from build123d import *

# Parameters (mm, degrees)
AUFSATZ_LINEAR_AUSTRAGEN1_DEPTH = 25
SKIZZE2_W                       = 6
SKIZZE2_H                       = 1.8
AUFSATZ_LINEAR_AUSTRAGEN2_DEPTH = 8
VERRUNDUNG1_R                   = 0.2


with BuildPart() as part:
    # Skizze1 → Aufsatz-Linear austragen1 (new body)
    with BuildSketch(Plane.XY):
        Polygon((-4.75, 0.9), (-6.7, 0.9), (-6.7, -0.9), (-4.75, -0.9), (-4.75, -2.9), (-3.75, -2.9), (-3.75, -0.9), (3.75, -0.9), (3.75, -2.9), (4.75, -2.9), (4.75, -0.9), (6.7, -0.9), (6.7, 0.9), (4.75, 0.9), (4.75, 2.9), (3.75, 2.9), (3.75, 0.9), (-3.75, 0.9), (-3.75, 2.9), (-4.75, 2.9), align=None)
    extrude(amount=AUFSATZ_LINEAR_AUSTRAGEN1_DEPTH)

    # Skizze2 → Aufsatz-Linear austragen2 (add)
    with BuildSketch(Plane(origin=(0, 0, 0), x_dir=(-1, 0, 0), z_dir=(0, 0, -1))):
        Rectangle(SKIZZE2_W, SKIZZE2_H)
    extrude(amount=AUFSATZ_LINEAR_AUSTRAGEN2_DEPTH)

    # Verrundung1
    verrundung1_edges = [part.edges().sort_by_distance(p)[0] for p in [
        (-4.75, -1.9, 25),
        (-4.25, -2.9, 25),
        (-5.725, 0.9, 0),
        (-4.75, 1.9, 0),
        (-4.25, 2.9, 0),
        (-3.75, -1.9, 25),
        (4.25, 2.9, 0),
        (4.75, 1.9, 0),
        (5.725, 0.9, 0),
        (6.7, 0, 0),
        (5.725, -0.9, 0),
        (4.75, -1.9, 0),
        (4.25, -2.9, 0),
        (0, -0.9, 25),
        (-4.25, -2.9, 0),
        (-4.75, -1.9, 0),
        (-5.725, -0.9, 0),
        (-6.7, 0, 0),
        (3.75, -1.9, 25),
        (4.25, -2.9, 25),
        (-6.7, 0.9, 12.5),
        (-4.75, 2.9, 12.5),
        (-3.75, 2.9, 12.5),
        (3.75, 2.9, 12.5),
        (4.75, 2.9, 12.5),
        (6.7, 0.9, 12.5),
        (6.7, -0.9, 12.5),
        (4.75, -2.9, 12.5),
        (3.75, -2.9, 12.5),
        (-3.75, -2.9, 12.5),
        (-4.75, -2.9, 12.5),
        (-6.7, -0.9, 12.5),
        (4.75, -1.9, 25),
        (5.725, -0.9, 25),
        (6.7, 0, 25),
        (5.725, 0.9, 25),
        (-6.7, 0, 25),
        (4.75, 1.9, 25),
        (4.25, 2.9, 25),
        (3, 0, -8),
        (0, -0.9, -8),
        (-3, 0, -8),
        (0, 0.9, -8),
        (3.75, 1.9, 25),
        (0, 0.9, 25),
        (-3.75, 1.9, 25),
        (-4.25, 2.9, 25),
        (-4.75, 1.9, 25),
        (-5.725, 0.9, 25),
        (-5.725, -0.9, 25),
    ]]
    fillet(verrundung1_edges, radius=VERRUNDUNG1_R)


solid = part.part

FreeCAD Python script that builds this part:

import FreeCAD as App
import Part
import Sketcher


def edges_at(feature, points):
    """Names of the edges that pass closest to the given points."""
    edges = feature.Shape.Edges
    near = lambda p: min(range(len(edges)), key=lambda i: edges[i].distToShape(Part.Vertex(*p))[0])
    return sorted({f"Edge{near(p) + 1}" for p in points})

doc = App.newDocument("Part")
params = doc.addObject("Spreadsheet::Sheet", "Params")
for row, (alias, value) in enumerate([
    ("sketch1_width", "1 mm"),
    ("sketch1_height", "2 mm"),
    ("sketch1_width2", "7.5 mm"),
    ("sketch1_height2", "1.8 mm"),
    ("sketch1_width3", "1.95 mm"),
    ("pad1_length", "25 mm"),
    ("sketch2_width", "6 mm"),
    ("sketch2_height", "1.8 mm"),
    ("pad2_length", "8 mm"),
    ("fillet_radius", "0.2 mm"),
], start=1):
    params.set(f"A{row}", alias)
    params.set(f"B{row}", "=" + value)
    params.setAlias(f"B{row}", alias)

body = doc.addObject("PartDesign::Body", "Body")

# Sketch on XY plane
sketch1 = doc.addObject("Sketcher::SketchObject", "Sketch")
body.addObject(sketch1)
sketch1.AttachmentSupport = (doc.XY_Plane, [""])
sketch1.MapMode = "FlatFace"
sketch1.addGeometry(Part.LineSegment(App.Vector(-4.8, 0.9, 0), App.Vector(-6.7, 0.9, 0)), False)
sketch1.addGeometry(Part.LineSegment(App.Vector(-6.7, 0.9, 0), App.Vector(-6.7, -0.9, 0)), False)
sketch1.addGeometry(Part.LineSegment(App.Vector(-6.7, -0.9, 0), App.Vector(-4.8, -0.9, 0)), False)
sketch1.addGeometry(Part.LineSegment(App.Vector(-4.8, -0.9, 0), App.Vector(-4.8, -2.9, 0)), False)
sketch1.addGeometry(Part.LineSegment(App.Vector(-4.8, -2.9, 0), App.Vector(-3.8, -2.9, 0)), False)
sketch1.addGeometry(Part.LineSegment(App.Vector(-3.8, -2.9, 0), App.Vector(-3.8, -0.9, 0)), False)
sketch1.addGeometry(Part.LineSegment(App.Vector(-3.8, -0.9, 0), App.Vector(3.8, -0.9, 0)), False)
sketch1.addGeometry(Part.LineSegment(App.Vector(3.8, -0.9, 0), App.Vector(3.8, -2.9, 0)), False)
sketch1.addGeometry(Part.LineSegment(App.Vector(3.8, -2.9, 0), App.Vector(4.8, -2.9, 0)), False)
sketch1.addGeometry(Part.LineSegment(App.Vector(4.8, -2.9, 0), App.Vector(4.8, -0.9, 0)), False)
sketch1.addGeometry(Part.LineSegment(App.Vector(4.8, -0.9, 0), App.Vector(6.7, -0.9, 0)), False)
sketch1.addGeometry(Part.LineSegment(App.Vector(6.7, -0.9, 0), App.Vector(6.7, 0.9, 0)), False)
sketch1.addGeometry(Part.LineSegment(App.Vector(6.7, 0.9, 0), App.Vector(4.8, 0.9, 0)), False)
sketch1.addGeometry(Part.LineSegment(App.Vector(4.8, 0.9, 0), App.Vector(4.8, 2.9, 0)), False)
sketch1.addGeometry(Part.LineSegment(App.Vector(4.8, 2.9, 0), App.Vector(3.8, 2.9, 0)), False)
sketch1.addGeometry(Part.LineSegment(App.Vector(3.8, 2.9, 0), App.Vector(3.8, 0.9, 0)), False)
sketch1.addGeometry(Part.LineSegment(App.Vector(3.8, 0.9, 0), App.Vector(-3.8, 0.9, 0)), False)
sketch1.addGeometry(Part.LineSegment(App.Vector(-3.8, 0.9, 0), App.Vector(-3.8, 2.9, 0)), False)
sketch1.addGeometry(Part.LineSegment(App.Vector(-3.8, 2.9, 0), App.Vector(-4.8, 2.9, 0)), False)
sketch1.addGeometry(Part.LineSegment(App.Vector(-4.8, 2.9, 0), App.Vector(-4.8, 0.9, 0)), False)
sketch1.addConstraint(Sketcher.Constraint("Coincident", 0, 2, 1, 1))
sketch1.addConstraint(Sketcher.Constraint("Coincident", 1, 2, 2, 1))
sketch1.addConstraint(Sketcher.Constraint("Coincident", 2, 2, 3, 1))
sketch1.addConstraint(Sketcher.Constraint("Coincident", 3, 2, 4, 1))
sketch1.addConstraint(Sketcher.Constraint("Coincident", 4, 2, 5, 1))
sketch1.addConstraint(Sketcher.Constraint("Coincident", 5, 2, 6, 1))
sketch1.addConstraint(Sketcher.Constraint("Coincident", 6, 2, 7, 1))
sketch1.addConstraint(Sketcher.Constraint("Coincident", 7, 2, 8, 1))
sketch1.addConstraint(Sketcher.Constraint("Coincident", 8, 2, 9, 1))
sketch1.addConstraint(Sketcher.Constraint("Coincident", 9, 2, 10, 1))
sketch1.addConstraint(Sketcher.Constraint("Coincident", 10, 2, 11, 1))
sketch1.addConstraint(Sketcher.Constraint("Coincident", 11, 2, 12, 1))
sketch1.addConstraint(Sketcher.Constraint("Coincident", 12, 2, 13, 1))
sketch1.addConstraint(Sketcher.Constraint("Coincident", 13, 2, 14, 1))
sketch1.addConstraint(Sketcher.Constraint("Coincident", 14, 2, 15, 1))
sketch1.addConstraint(Sketcher.Constraint("Coincident", 15, 2, 16, 1))
sketch1.addConstraint(Sketcher.Constraint("Coincident", 16, 2, 17, 1))
sketch1.addConstraint(Sketcher.Constraint("Coincident", 17, 2, 18, 1))
sketch1.addConstraint(Sketcher.Constraint("Coincident", 18, 2, 19, 1))
sketch1.addConstraint(Sketcher.Constraint("Coincident", 19, 2, 0, 1))
sketch1.addConstraint(Sketcher.Constraint("Horizontal", 0))
sketch1.addConstraint(Sketcher.Constraint("Vertical", 1))
sketch1.addConstraint(Sketcher.Constraint("Horizontal", 2))
sketch1.addConstraint(Sketcher.Constraint("Vertical", 3))
sketch1.addConstraint(Sketcher.Constraint("Horizontal", 4))
sketch1.addConstraint(Sketcher.Constraint("Vertical", 5))
sketch1.addConstraint(Sketcher.Constraint("Horizontal", 6))
sketch1.addConstraint(Sketcher.Constraint("Vertical", 7))
sketch1.addConstraint(Sketcher.Constraint("Horizontal", 8))
sketch1.addConstraint(Sketcher.Constraint("Vertical", 9))
sketch1.addConstraint(Sketcher.Constraint("Horizontal", 10))
sketch1.addConstraint(Sketcher.Constraint("Vertical", 11))
sketch1.addConstraint(Sketcher.Constraint("Horizontal", 12))
sketch1.addConstraint(Sketcher.Constraint("Vertical", 13))
sketch1.addConstraint(Sketcher.Constraint("Horizontal", 14))
sketch1.addConstraint(Sketcher.Constraint("Vertical", 15))
sketch1.addConstraint(Sketcher.Constraint("Horizontal", 16))
sketch1.addConstraint(Sketcher.Constraint("Vertical", 17))
sketch1.addConstraint(Sketcher.Constraint("Horizontal", 18))
sketch1.addConstraint(Sketcher.Constraint("Vertical", 19))
sketch1.addConstraint(Sketcher.Constraint("Symmetric", 0, 2, 10, 2, -1, 1))
sketch1.addConstraint(Sketcher.Constraint("Symmetric", 2, 2, 12, 2, -1, 1))
sketch1.addConstraint(Sketcher.Constraint("Symmetric", 4, 2, 14, 2, -1, 1))
sketch1.addConstraint(Sketcher.Constraint("Symmetric", 6, 2, 16, 2, -1, 1))
sketch1.addConstraint(Sketcher.Constraint("Symmetric", 8, 2, 18, 2, -1, 1))
sketch1.addConstraint(Sketcher.Constraint("Symmetric", 4, 2, 7, 2, -2))
sketch1.addConstraint(Sketcher.Constraint("Symmetric", 2, 2, 9, 2, -2))
sketch1.addConstraint(Sketcher.Constraint("Horizontal", 2, 2, 5, 2))
sketch1.addConstraint(Sketcher.Constraint("DistanceX", 4, 1, 4, 2, 1.0))
sketch1.addConstraint(Sketcher.Constraint("DistanceY", 3, 2, 3, 1, 2.0))
sketch1.addConstraint(Sketcher.Constraint("DistanceX", 6, 1, 6, 2, 7.5))
sketch1.addConstraint(Sketcher.Constraint("DistanceY", 1, 2, 1, 1, 1.8))
sketch1.addConstraint(Sketcher.Constraint("DistanceX", 0, 2, 0, 1, 1.95))
sketch1.setExpression("Constraints[48]", "Params.sketch1_width")
sketch1.setExpression("Constraints[49]", "Params.sketch1_height")
sketch1.setExpression("Constraints[50]", "Params.sketch1_width2")
sketch1.setExpression("Constraints[51]", "Params.sketch1_height2")
sketch1.setExpression("Constraints[52]", "Params.sketch1_width3")
pad1 = doc.addObject("PartDesign::Pad", "Pad")
body.addObject(pad1)
pad1.Profile = sketch1
pad1.setExpression("Length", "Params.pad1_length")

# Sketch on XY plane
sketch2 = doc.addObject("Sketcher::SketchObject", "Sketch001")
body.addObject(sketch2)
sketch2.AttachmentSupport = (doc.XY_Plane, [""])
sketch2.MapMode = "FlatFace"
sketch2.addGeometry(Part.LineSegment(App.Vector(3, 0.9, 0), App.Vector(3, -0.9, 0)), False)
sketch2.addGeometry(Part.LineSegment(App.Vector(3, -0.9, 0), App.Vector(-3, -0.9, 0)), False)
sketch2.addGeometry(Part.LineSegment(App.Vector(-3, -0.9, 0), App.Vector(-3, 0.9, 0)), False)
sketch2.addGeometry(Part.LineSegment(App.Vector(-3, 0.9, 0), App.Vector(3, 0.9, 0)), False)
sketch2.addConstraint(Sketcher.Constraint("Coincident", 0, 2, 1, 1))
sketch2.addConstraint(Sketcher.Constraint("Coincident", 1, 2, 2, 1))
sketch2.addConstraint(Sketcher.Constraint("Coincident", 2, 2, 3, 1))
sketch2.addConstraint(Sketcher.Constraint("Coincident", 3, 2, 0, 1))
sketch2.addConstraint(Sketcher.Constraint("Vertical", 0))
sketch2.addConstraint(Sketcher.Constraint("Horizontal", 1))
sketch2.addConstraint(Sketcher.Constraint("Vertical", 2))
sketch2.addConstraint(Sketcher.Constraint("Horizontal", 3))
sketch2.addConstraint(Sketcher.Constraint("Symmetric", 0, 2, 2, 2, -1, 1))
sketch2.addConstraint(Sketcher.Constraint("DistanceX", 1, 2, 1, 1, 6.0))
sketch2.addConstraint(Sketcher.Constraint("DistanceY", 0, 2, 0, 1, 1.8))
sketch2.setExpression("Constraints[9]", "Params.sketch2_width")
sketch2.setExpression("Constraints[10]", "Params.sketch2_height")
pad2 = doc.addObject("PartDesign::Pad", "Pad001")
body.addObject(pad2)
pad2.Profile = sketch2
pad2.setExpression("Length", "Params.pad2_length")
pad2.Reversed = True
doc.recompute()

fillet = doc.addObject("PartDesign::Fillet", "Fillet")
body.addObject(fillet)
fillet.Base = (pad2, edges_at(pad2, [
    (-4.75, -1.9, 25),
    (-4.25, -2.9, 25),
    (-5.725, 0.9, 0),
    (-4.75, 1.9, 0),
    (-4.25, 2.9, 0),
    (-3.75, -1.9, 25),
    (4.25, 2.9, 0),
    (4.75, 1.9, 0),
    (5.725, 0.9, 0),
    (6.7, 0, 0),
    (5.725, -0.9, 0),
    (4.75, -1.9, 0),
    (4.25, -2.9, 0),
    (0, -0.9, 25),
    (-4.25, -2.9, 0),
    (-4.75, -1.9, 0),
    (-5.725, -0.9, 0),
    (-6.7, 0, 0),
    (3.75, -1.9, 25),
    (4.25, -2.9, 25),
    (-6.7, 0.9, 12.5),
    (-4.75, 2.9, 12.5),
    (-3.75, 2.9, 12.5),
    (3.75, 2.9, 12.5),
    (4.75, 2.9, 12.5),
    (6.7, 0.9, 12.5),
    (6.7, -0.9, 12.5),
    (4.75, -2.9, 12.5),
    (3.75, -2.9, 12.5),
    (-3.75, -2.9, 12.5),
    (-4.75, -2.9, 12.5),
    (-6.7, -0.9, 12.5),
    (4.75, -1.9, 25),
    (5.725, -0.9, 25),
    (6.7, 0, 25),
    (5.725, 0.9, 25),
    (-6.7, 0, 25),
    (4.75, 1.9, 25),
    (4.25, 2.9, 25),
    (3, 0, -8),
    (0, -0.9, -8),
    (-3, 0, -8),
    (0, 0.9, -8),
    (3.75, 1.9, 25),
    (0, 0.9, 25),
    (-3.75, 1.9, 25),
    (-4.25, 2.9, 25),
    (-4.75, 1.9, 25),
    (-5.725, 0.9, 25),
    (-5.725, -0.9, 25),
]))
fillet.setExpression("Radius", "Params.fillet_radius")

doc.recompute()
